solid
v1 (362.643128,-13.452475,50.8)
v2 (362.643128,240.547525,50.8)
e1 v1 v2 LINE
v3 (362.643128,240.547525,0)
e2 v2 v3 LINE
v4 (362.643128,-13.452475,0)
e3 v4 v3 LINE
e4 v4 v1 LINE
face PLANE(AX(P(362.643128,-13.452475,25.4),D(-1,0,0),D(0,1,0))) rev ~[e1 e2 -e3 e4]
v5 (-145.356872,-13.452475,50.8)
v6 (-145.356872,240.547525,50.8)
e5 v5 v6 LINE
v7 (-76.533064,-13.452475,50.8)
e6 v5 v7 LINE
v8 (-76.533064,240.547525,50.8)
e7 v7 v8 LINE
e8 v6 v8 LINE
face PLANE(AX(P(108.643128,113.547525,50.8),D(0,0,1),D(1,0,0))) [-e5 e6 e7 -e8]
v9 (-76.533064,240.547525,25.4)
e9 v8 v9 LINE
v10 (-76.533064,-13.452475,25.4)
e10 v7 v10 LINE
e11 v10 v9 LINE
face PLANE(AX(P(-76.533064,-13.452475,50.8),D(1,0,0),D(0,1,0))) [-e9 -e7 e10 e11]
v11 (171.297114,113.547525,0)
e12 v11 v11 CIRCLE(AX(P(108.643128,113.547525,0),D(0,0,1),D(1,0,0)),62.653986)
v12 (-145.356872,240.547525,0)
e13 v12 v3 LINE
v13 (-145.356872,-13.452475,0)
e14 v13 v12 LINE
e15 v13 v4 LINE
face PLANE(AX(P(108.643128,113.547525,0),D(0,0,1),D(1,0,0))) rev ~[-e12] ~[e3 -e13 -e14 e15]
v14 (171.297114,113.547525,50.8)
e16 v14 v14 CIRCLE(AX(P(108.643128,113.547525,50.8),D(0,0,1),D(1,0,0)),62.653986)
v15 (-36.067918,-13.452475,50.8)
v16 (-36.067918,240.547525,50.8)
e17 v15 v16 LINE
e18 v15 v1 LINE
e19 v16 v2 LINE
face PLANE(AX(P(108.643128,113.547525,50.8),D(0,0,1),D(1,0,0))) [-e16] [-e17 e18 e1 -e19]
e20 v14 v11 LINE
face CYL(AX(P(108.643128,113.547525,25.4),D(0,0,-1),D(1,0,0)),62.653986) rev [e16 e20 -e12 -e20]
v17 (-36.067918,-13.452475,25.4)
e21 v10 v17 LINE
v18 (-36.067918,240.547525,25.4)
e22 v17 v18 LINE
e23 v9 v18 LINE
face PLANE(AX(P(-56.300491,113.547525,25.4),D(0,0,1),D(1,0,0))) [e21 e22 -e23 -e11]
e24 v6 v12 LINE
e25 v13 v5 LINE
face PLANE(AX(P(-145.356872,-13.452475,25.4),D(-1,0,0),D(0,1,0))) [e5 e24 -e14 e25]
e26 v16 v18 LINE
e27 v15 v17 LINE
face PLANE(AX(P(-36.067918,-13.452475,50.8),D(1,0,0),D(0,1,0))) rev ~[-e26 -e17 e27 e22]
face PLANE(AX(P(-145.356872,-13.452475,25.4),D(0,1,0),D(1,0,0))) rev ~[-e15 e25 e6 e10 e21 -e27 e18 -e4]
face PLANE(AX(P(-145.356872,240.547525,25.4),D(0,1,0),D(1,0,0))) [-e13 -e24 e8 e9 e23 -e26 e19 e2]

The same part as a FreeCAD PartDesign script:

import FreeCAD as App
import Part
import Sketcher
from FreeCAD import Vector
Q = App.Units.Quantity


def add_polygon(sketch, points):
    """Adds a closed chain of lines whose ends are joined by coincident constraints."""
    first, n = sketch.GeometryCount, len(points)
    for a, b in zip(points, points[1:] + points[:1]):
        sketch.addGeometry(Part.LineSegment(App.Vector(*a, 0), App.Vector(*b, 0)), False)
    for i in range(n):
        sketch.addConstraint(Sketcher.Constraint("Coincident", first + i, 2, first + (i + 1) % n, 1))

doc = App.newDocument("Part")
body = doc.addObject("PartDesign::Body", "Body")

sketch1 = body.newObject("Sketcher::SketchObject", "Sketch")
sketch1.AttachmentSupport = (doc.getObject("XY_Plane"), [""])
sketch1.MapMode = "FlatFace"
add_polygon(sketch1, [(-145, 241), (-145, -13), (363, -13), (363, 241)])
sketch1.addGeometry(Part.Circle(Vector(109, 114, 0), Vector(0, 0, 1), 63), False)
sketch1.addConstraint(Sketcher.Constraint("Vertical", 0))
sketch1.addConstraint(Sketcher.Constraint("Horizontal", 1))
sketch1.addConstraint(Sketcher.Constraint("Vertical", 2))
sketch1.addConstraint(Sketcher.Constraint("Horizontal", 3))
sketch1.addConstraint(Sketcher.Constraint("DistanceX", 1, 1, 1, 2, Q("20 in")))
sketch1.addConstraint(Sketcher.Constraint("DistanceY", 0, 2, 0, 1, Q("10 in")))
sketch1.addConstraint(Sketcher.Constraint("DistanceX", 0, 2, 4, 3, Q("10 in")))
sketch1.addConstraint(Sketcher.Constraint("DistanceY", 0, 2, 4, 3, Q("5 in")))
sketch1.addConstraint(Sketcher.Constraint("Diameter", 4, Q("125.307972 mm")))
sketch1.addConstraint(Sketcher.Constraint("DistanceX", -1, 1, 4, 3, Q("108.643128 mm")))
sketch1.addConstraint(Sketcher.Constraint("DistanceY", -1, 1, 4, 3, Q("113.547525 mm")))
pad1 = body.newObject("PartDesign::Pad", "Pad")
pad1.Profile = sketch1
pad1.Length = Q("1 in")

sketch2 = body.newObject("Sketcher::SketchObject", "Sketch001")
sketch2.AttachmentSupport = (doc.getObject("XY_Plane"), [""])
sketch2.MapMode = "FlatFace"
sketch2.AttachmentOffset = App.Placement(Vector(0, 0, 1 * 25.4), App.Rotation())
add_polygon(sketch2, [(-145, 241), (-145, -13), (363, -13), (363, 241)])
sketch2.addGeometry(Part.Circle(Vector(109, 114, 0), Vector(0, 0, 1), 63), False)
sketch2.addConstraint(Sketcher.Constraint("Vertical", 0))
sketch2.addConstraint(Sketcher.Constraint("Horizontal", 1))
sketch2.addConstraint(Sketcher.Constraint("Vertical", 2))
sketch2.addConstraint(Sketcher.Constraint("Horizontal", 3))
sketch2.addConstraint(Sketcher.Constraint("DistanceX", 1, 1, 1, 2, Q("20 in")))
sketch2.addConstraint(Sketcher.Constraint("DistanceY", 0, 2, 0, 1, Q("10 in")))
sketch2.addConstraint(Sketcher.Constraint("DistanceX", 0, 2, 4, 3, Q("10 in")))
sketch2.addConstraint(Sketcher.Constraint("DistanceY", 0, 2, 4, 3, Q("5 in")))
sketch2.addConstraint(Sketcher.Constraint("Diameter", 4, Q("125.307972 mm")))
sketch2.addConstraint(Sketcher.Constraint("DistanceX", -1, 1, 4, 3, Q("108.643128 mm")))
sketch2.addConstraint(Sketcher.Constraint("DistanceY", -1, 1, 4, 3, Q("113.547525 mm")))
pad2 = body.newObject("PartDesign::Pad", "Pad001")
pad2.Profile = sketch2
pad2.Length = Q("1 in")

sketch3 = body.newObject("Sketcher::SketchObject", "Sketch002")
sketch3.AttachmentSupport = (doc.getObject("XY_Plane"), [""])
sketch3.MapMode = "FlatFace"
sketch3.AttachmentOffset = App.Placement(Vector(0, 0, 2 * 25.4), App.Rotation())
add_polygon(sketch3, [(-77, 241), (-77, -13), (-36, -13), (-36, 241)])
sketch3.addConstraint(Sketcher.Constraint("Vertical", 0))
sketch3.addConstraint(Sketcher.Constraint("Horizontal", 1))
sketch3.addConstraint(Sketcher.Constraint("Vertical", 2))
sketch3.addConstraint(Sketcher.Constraint("Horizontal", 3))
sketch3.addConstraint(Sketcher.Constraint("DistanceY", 0, 2, 0, 1, Q("10 in")))
sketch3.addConstraint(Sketcher.Constraint("DistanceX", 1, 1, 1, 2, Q("40.465146 mm")))
sketch3.addConstraint(Sketcher.Constraint("DistanceX", 0, 2, -1, 1, Q("76.533064 mm")))
sketch3.addConstraint(Sketcher.Constraint("DistanceY", 0, 2, -1, 1, Q("13.452475 mm")))
pocket1 = body.newObject("PartDesign::Pocket", "Pocket")
pocket1.Profile = sketch3
pocket1.Length = Q("1 in")

doc.recompute()
